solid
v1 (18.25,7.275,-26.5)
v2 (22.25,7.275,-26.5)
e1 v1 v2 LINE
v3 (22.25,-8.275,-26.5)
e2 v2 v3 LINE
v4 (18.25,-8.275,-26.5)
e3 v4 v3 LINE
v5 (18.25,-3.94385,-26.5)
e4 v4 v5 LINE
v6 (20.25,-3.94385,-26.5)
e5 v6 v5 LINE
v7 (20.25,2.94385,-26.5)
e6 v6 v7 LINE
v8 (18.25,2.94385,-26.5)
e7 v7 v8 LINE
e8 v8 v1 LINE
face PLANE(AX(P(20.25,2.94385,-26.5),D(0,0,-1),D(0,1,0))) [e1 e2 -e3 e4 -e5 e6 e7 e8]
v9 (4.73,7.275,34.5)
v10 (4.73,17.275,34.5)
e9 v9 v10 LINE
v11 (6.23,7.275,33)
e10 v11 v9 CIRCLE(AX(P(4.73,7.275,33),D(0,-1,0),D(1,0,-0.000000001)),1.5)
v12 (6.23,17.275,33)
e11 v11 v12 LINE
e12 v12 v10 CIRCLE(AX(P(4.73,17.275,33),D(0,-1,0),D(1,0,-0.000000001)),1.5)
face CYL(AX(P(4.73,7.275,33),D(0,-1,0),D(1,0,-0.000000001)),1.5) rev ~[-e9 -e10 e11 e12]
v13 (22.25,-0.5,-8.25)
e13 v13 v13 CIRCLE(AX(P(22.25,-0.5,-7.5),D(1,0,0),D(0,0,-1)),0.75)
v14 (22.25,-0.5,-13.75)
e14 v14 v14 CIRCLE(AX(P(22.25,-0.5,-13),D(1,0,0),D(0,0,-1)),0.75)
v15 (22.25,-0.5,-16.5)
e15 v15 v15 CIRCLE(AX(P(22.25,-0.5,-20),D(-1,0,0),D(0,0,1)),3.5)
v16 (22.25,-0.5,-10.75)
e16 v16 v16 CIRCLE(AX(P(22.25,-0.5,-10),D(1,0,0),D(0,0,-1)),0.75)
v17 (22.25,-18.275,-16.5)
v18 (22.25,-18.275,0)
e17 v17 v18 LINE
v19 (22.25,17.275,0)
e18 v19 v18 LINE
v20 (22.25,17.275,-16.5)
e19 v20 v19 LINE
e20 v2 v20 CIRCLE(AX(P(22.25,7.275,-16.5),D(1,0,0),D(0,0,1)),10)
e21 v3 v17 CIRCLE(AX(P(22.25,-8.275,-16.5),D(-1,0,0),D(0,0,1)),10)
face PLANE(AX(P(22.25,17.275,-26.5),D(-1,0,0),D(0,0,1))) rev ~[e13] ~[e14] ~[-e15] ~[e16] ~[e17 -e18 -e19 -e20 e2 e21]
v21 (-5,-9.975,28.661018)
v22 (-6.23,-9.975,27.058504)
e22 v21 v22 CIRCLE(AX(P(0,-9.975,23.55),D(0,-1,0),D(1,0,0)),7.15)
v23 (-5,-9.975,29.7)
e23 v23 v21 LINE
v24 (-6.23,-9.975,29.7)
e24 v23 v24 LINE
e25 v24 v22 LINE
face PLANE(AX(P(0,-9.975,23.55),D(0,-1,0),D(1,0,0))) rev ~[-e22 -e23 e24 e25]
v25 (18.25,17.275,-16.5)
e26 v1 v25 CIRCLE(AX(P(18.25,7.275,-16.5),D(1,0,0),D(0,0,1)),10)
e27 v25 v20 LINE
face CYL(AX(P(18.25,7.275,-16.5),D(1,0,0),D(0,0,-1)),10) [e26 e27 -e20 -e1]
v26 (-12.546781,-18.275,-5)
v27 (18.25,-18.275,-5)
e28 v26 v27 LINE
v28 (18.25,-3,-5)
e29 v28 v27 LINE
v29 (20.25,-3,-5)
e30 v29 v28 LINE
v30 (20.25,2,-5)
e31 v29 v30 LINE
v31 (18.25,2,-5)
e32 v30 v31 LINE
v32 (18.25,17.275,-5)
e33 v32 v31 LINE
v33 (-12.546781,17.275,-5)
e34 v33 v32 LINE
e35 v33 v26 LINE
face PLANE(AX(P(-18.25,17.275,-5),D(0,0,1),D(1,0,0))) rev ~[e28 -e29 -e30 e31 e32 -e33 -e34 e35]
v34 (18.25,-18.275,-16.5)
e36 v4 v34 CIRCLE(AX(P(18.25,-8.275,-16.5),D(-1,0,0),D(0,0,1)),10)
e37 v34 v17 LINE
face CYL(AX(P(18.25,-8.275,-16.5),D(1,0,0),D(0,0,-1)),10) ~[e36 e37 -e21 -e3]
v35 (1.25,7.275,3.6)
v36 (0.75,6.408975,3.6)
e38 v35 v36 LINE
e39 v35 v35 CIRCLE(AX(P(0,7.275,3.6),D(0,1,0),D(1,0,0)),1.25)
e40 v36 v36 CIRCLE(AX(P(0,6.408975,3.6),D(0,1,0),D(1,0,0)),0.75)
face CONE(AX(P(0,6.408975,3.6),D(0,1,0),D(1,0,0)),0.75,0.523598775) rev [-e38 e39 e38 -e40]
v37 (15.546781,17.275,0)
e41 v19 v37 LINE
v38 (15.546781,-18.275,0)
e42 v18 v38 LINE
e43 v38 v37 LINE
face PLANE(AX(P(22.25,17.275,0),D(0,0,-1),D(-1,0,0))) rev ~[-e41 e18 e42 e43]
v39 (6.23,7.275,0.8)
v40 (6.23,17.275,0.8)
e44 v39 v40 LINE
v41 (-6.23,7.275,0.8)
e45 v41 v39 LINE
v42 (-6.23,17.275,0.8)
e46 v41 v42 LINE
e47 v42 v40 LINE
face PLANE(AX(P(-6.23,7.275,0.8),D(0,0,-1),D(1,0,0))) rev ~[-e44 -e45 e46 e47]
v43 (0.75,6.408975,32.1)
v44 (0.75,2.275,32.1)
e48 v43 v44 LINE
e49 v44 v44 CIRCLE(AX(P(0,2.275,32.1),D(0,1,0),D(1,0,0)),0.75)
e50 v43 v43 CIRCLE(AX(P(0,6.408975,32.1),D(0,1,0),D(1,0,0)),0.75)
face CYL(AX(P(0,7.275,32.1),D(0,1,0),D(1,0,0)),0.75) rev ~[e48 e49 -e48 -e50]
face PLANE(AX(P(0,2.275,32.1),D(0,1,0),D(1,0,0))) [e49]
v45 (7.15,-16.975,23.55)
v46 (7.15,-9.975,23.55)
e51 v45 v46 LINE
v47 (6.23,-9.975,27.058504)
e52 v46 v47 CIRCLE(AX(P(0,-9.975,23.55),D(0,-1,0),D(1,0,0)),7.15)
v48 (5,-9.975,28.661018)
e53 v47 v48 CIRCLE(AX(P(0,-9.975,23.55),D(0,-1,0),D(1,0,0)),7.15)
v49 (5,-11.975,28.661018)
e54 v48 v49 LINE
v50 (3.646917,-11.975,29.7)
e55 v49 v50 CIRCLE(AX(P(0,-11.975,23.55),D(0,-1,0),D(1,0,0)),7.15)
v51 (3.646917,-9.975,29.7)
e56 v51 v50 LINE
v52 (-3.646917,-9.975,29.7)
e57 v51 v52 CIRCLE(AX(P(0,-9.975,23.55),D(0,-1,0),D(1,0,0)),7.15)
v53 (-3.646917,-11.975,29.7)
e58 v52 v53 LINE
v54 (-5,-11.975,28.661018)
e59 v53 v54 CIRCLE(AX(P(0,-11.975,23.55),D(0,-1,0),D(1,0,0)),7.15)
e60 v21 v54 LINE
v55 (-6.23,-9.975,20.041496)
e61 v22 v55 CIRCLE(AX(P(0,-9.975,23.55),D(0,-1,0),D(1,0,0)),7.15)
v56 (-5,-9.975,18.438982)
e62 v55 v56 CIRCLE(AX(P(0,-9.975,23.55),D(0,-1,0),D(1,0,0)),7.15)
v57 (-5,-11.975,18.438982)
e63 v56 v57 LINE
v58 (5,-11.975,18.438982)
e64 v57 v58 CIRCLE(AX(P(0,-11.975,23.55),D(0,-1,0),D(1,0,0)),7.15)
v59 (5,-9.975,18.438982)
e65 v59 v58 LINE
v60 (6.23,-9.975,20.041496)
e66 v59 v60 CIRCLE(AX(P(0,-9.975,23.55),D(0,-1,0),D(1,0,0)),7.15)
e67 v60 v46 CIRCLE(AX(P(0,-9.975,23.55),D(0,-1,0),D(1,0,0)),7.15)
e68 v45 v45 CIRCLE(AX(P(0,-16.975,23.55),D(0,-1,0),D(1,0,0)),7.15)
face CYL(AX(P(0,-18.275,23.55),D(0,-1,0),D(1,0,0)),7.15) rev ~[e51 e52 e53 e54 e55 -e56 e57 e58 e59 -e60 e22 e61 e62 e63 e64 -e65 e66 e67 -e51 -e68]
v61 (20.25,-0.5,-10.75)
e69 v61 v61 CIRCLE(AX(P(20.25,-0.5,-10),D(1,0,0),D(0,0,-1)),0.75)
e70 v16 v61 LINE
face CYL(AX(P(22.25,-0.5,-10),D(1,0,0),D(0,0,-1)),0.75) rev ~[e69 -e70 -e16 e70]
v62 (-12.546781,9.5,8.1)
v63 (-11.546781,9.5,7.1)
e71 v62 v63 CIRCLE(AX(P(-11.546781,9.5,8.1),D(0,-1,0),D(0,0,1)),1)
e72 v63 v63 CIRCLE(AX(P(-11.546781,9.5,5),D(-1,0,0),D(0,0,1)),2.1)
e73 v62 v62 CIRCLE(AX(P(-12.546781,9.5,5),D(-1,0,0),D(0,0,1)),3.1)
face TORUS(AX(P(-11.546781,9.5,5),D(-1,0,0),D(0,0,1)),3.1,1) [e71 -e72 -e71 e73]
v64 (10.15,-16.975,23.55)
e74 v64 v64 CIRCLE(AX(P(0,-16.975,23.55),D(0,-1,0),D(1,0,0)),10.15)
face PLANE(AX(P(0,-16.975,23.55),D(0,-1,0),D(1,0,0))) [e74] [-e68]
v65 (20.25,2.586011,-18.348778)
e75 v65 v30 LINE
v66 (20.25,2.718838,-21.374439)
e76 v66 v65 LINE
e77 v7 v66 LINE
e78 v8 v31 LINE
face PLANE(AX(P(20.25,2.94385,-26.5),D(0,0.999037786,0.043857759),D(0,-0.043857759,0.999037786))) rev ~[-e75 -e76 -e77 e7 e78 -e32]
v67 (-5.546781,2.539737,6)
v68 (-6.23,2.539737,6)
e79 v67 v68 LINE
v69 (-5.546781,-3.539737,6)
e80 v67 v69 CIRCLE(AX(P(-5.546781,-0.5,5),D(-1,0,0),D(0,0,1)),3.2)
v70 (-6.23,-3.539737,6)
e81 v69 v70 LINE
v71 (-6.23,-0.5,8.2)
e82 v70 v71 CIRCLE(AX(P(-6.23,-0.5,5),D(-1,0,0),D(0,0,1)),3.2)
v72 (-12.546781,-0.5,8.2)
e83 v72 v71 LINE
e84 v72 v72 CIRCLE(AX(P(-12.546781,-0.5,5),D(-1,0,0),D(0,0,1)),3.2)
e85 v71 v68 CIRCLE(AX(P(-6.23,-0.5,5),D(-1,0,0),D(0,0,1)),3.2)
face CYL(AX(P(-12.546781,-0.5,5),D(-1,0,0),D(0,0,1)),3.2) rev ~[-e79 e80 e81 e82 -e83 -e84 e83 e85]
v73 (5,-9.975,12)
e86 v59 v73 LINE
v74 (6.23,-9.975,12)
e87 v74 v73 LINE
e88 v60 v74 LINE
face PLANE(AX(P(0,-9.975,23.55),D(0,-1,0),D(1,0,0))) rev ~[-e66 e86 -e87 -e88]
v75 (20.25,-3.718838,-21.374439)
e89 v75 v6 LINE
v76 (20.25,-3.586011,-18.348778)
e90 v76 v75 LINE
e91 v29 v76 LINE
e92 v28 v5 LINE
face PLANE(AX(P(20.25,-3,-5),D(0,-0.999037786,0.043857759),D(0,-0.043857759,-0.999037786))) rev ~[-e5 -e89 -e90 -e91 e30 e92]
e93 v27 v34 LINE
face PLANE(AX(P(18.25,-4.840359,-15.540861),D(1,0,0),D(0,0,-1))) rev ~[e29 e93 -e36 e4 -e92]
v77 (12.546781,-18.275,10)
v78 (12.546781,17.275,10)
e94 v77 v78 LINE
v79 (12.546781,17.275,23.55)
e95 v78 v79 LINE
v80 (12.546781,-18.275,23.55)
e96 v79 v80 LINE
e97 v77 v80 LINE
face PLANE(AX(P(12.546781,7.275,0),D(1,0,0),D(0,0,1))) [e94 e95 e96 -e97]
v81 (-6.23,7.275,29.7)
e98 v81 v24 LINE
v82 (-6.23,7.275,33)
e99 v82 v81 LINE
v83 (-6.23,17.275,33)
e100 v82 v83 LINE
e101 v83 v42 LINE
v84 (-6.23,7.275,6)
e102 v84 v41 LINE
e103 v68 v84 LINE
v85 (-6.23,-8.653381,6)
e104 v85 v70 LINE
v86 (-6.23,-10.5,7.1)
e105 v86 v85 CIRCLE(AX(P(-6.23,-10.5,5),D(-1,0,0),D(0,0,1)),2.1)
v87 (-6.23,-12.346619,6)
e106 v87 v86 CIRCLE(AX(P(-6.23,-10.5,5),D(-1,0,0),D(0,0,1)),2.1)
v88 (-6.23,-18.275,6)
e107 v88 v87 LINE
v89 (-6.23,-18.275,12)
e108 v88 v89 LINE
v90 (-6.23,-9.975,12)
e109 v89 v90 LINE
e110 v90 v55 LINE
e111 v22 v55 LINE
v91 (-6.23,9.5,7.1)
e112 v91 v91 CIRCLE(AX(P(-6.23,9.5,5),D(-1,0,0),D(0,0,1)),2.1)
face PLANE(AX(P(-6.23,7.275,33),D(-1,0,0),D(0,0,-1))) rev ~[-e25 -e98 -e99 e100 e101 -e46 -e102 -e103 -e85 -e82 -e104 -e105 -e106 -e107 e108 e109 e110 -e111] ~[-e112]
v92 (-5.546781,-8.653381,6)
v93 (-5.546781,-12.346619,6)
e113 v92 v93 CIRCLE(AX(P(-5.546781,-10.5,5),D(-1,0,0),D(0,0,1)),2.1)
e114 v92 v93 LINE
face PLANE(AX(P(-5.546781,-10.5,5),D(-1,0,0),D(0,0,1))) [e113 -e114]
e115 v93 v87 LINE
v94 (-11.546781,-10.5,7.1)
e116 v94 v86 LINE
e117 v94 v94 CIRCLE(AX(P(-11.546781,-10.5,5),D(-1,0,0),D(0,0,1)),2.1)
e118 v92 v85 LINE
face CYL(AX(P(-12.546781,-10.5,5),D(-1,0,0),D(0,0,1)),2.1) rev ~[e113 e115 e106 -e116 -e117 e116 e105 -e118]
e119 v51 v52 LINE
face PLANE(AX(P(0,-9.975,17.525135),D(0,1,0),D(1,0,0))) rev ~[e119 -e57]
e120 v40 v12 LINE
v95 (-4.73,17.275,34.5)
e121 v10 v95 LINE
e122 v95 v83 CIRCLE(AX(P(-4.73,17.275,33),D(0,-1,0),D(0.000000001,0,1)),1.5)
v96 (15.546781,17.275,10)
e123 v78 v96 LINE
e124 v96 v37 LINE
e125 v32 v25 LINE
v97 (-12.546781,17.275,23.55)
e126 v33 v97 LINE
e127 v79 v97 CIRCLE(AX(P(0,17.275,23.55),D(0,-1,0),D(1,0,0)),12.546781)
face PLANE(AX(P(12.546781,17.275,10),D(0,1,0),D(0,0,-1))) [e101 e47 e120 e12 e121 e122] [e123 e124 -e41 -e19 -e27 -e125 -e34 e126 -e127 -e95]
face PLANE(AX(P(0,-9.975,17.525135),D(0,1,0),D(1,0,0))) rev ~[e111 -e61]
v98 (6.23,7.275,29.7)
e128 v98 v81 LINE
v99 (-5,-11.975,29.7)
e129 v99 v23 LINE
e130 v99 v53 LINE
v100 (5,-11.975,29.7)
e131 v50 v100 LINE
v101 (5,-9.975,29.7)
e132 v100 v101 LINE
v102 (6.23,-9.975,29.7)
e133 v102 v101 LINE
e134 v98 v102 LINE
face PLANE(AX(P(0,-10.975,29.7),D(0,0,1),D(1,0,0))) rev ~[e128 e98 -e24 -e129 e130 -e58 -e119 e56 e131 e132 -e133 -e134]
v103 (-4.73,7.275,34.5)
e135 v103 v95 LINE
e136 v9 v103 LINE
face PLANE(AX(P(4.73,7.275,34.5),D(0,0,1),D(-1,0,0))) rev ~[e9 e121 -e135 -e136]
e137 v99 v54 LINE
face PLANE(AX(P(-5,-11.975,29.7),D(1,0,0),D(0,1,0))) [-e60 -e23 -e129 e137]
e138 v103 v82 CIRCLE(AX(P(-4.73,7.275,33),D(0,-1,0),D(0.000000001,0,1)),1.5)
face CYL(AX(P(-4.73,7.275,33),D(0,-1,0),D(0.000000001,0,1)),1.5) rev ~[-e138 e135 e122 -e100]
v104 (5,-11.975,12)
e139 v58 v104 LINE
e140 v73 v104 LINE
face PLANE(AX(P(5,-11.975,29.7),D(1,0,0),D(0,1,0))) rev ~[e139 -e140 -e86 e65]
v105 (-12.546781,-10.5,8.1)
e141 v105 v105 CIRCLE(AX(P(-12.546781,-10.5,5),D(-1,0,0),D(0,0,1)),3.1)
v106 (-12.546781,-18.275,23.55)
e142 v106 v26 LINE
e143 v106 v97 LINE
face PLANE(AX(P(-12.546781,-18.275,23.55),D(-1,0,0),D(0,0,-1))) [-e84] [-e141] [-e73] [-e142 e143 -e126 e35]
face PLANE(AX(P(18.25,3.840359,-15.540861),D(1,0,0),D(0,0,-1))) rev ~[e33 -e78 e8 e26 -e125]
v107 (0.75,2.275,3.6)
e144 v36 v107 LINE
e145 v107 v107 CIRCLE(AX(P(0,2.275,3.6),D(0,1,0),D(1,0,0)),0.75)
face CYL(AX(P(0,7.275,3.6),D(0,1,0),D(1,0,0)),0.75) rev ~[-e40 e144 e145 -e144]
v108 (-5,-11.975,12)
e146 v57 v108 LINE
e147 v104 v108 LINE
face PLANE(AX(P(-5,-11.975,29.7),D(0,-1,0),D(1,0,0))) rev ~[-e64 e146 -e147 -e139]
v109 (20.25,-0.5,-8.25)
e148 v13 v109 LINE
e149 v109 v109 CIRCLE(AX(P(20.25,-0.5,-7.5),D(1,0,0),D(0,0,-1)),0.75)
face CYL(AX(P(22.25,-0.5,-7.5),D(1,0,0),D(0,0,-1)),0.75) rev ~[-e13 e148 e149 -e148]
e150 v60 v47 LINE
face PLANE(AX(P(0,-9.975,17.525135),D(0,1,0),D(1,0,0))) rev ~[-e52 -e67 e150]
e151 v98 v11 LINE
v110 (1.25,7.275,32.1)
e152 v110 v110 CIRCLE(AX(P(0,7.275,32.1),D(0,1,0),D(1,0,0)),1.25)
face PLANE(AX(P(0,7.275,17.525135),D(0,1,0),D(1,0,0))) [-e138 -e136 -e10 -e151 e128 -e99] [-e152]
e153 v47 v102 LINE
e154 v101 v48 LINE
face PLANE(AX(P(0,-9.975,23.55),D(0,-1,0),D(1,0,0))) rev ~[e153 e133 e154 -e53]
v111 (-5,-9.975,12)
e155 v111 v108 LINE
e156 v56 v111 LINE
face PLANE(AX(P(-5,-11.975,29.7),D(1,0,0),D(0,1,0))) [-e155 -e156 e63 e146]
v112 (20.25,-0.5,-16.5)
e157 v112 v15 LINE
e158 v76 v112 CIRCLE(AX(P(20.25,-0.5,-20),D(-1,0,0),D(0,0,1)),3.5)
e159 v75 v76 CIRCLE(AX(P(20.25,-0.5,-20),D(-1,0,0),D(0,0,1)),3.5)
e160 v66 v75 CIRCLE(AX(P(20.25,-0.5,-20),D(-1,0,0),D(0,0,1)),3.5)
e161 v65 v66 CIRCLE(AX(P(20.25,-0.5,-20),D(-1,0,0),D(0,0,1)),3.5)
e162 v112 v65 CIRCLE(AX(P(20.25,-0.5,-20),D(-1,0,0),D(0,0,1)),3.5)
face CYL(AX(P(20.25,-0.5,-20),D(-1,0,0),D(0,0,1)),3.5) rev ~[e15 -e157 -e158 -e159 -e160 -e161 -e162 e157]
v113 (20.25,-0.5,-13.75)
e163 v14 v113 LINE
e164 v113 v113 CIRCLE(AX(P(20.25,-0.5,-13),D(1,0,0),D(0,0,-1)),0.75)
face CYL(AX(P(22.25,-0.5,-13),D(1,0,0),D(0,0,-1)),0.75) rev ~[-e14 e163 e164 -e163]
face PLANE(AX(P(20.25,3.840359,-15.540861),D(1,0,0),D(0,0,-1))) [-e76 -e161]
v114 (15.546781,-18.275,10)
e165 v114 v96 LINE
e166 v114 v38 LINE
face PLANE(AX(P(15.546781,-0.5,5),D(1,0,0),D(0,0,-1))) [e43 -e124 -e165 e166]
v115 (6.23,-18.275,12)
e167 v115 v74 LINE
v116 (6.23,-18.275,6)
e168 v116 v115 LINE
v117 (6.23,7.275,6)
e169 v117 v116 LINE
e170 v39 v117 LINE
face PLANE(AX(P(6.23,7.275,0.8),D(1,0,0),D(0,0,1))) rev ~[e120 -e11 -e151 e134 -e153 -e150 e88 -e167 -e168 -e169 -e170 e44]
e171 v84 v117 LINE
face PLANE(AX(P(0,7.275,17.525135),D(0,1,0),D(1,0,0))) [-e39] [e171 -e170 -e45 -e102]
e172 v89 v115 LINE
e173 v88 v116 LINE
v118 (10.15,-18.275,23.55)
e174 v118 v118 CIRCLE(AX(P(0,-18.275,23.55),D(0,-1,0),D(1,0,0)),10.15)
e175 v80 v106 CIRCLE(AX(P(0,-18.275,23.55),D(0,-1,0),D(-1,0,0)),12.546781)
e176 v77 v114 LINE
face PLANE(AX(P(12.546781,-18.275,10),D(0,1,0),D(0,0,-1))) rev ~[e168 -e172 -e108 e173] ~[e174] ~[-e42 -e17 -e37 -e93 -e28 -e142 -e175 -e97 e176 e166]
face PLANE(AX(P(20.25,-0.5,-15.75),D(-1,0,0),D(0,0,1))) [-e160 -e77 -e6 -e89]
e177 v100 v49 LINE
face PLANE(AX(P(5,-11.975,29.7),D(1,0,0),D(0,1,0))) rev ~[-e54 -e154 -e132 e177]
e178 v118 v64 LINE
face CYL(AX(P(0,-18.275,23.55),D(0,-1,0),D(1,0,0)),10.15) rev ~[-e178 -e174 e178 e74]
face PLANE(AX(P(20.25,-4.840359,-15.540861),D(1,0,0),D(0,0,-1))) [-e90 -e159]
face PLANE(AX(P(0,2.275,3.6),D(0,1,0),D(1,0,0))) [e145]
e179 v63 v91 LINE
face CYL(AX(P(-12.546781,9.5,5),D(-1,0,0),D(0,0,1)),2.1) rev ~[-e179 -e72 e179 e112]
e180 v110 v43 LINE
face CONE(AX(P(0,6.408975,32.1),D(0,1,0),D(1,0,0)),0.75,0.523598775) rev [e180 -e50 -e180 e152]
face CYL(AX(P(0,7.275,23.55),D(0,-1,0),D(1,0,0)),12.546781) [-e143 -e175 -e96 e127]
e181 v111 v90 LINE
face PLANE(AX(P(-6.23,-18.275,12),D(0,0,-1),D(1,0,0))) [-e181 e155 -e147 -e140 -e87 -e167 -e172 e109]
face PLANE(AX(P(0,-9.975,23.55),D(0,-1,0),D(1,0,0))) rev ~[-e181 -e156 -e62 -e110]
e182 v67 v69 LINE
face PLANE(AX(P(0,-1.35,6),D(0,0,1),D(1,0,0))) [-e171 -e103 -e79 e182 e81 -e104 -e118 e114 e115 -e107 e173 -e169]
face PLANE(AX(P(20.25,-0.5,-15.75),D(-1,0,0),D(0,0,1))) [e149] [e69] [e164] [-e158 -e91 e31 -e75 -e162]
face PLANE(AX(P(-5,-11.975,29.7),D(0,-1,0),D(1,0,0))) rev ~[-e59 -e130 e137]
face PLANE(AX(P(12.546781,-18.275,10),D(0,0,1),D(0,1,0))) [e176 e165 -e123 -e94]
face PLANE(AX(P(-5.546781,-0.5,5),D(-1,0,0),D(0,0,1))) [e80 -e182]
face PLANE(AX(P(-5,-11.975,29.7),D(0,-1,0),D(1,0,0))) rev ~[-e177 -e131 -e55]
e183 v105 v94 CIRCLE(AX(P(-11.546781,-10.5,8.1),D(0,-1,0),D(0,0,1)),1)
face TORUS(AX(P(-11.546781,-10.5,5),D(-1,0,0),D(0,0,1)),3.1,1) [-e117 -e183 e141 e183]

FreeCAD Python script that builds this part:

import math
import FreeCAD as App
import Part
import Sketcher
from FreeCAD import Vector
Q = App.Units.Quantity


def edges_at(feature, points):
    """Names of the edges that pass closest to the given points."""
    edges = feature.Shape.Edges
    near = lambda p: min(range(len(edges)), key=lambda i: edges[i].distToShape(Part.Vertex(*p))[0])
    return sorted({f"Edge{near(p) + 1}" for p in points})

doc = App.newDocument("Part")
params = doc.addObject("Spreadsheet::Sheet", "Params")
for row, (alias, value) in enumerate([
    ("sketch1_width", "12.46 mm"),
    ("sketch1_height", "17.25 mm"),
    ("pad1_length", "6 mm"),
    ("sketch2_diameter", "22.3 mm"),
    ("pad2_length", "8.3 mm"),
    ("pad2_length2", "17.25 mm"),
    ("sketch3_height", "29.7 mm"),
    ("sketch3_width", "12.46 mm"),
    ("sketch3_height2", "23.55 mm"),
    ("pad3_length", "17.25 mm"),
    ("sketch4_diameter", "1.5 mm"),
    ("pocket1_length", "5 mm"),
    ("chamfer_size", "0.5 mm"),
    ("chamfer_size2", "0.866025 mm"),
    ("sketch5_height", "23.7 mm"),
    ("sketch5_width", "12.46 mm"),
    ("pocket2_length", "17.25 mm"),
    ("sketch6_height", "23.55 mm"),
    ("pad4_length", "8.3 mm"),
    ("sketch7_radius", "1.5 mm"),
    ("sketch7_height", "32.2 mm"),
    ("sketch7_width", "12.46 mm"),
    ("sketch7_height2", "23.55 mm"),
    ("pad5_length", "10 mm"),
    ("sketch8_diameter", "22.3 mm"),
    ("sketch8_diameter2", "14.3 mm"),
    ("pad6_length", "8.3 mm"),
    ("sketch9_diameter", "20.3 mm"),
    ("sketch9_diameter2", "14.3 mm"),
    ("pocket3_length", "1.3 mm"),
    ("sketch10_width", "10 mm"),
    ("sketch10_height", "2 mm"),
    ("pocket4_length", "23.7 mm"),
    ("sketch11_height", "6 mm"),
    ("sketch11_width", "12.46 mm"),
    ("pocket5_length", "8.3 mm"),
    ("sketch12_width", "4 mm"),
    ("sketch12_width2", "36.5 mm"),
    ("sketch12_height", "26.5 mm"),
    ("sketch12_height2", "21.5 mm"),
    ("pad7_length", "35.55 mm"),
    ("sketch13_height", "21.5 mm"),
    ("pocket6_length", "2 mm"),
    ("sketch14_diameter", "7 mm"),
    ("fillet_radius", "10 mm"),
    ("sketch15_diameter", "13 mm"),
    ("pad8_length", "5 mm"),
    ("sketch16_diameter", "11.7 mm"),
    ("pad9_length", "5 mm"),
    ("fillet2_radius", "1 mm"),
    ("sketch17_height", "21.5 mm"),
    ("pad10_length", "2 mm"),
    ("sketch18_diameter", "1.5 mm"),
    ("sketch19_diameter", "1.5 mm"),
    ("sketch20_diameter", "1.5 mm"),
    ("sketch22_diameter", "4.2 mm"),
    ("sketch22_diameter2", "6.4 mm"),
    ("pocket12_length", "7 mm"),
    ("fillet3_radius", "1 mm"),
    ("sketch23_height", "10 mm"),
    ("sketch23_width", "35.55 mm"),
    ("pad11_length", "3 mm"),
], start=1):
    params.set(f"A{row}", alias)
    params.set(f"B{row}", "=" + value)
    params.setAlias(f"B{row}", alias)

body = doc.addObject("PartDesign::Body", "Body")

# Sketch on XY plane
sketch1 = body.newObject("Sketcher::SketchObject", "Sketch")
sketch1.AttachmentSupport = (doc.getObject("XY_Plane"), [""])
sketch1.MapMode = "FlatFace"
sketch1.addGeometry([
    Part.LineSegment(Vector(-6, 7, 0), Vector(-6, -10, 0)),
    Part.LineSegment(Vector(-6, -10, 0), Vector(6, -10, 0)),
    Part.LineSegment(Vector(6, -10, 0), Vector(6, 7, 0)),
    Part.LineSegment(Vector(6, 7, 0), Vector(-6, 7, 0)),
], False)
sketch1.addConstraint([
    Sketcher.Constraint("Coincident", 0, 2, 1, 1),
    Sketcher.Constraint("Coincident", 1, 2, 2, 1),
    Sketcher.Constraint("Coincident", 2, 2, 3, 1),
    Sketcher.Constraint("Coincident", 3, 2, 0, 1),
    Sketcher.Constraint("Vertical", 0),
    Sketcher.Constraint("Horizontal", 1),
    Sketcher.Constraint("Vertical", 2),
    Sketcher.Constraint("Horizontal", 3),
    Sketcher.Constraint("DistanceX", 1, 1, 1, 2, Q("12.46 mm")),
    Sketcher.Constraint("DistanceY", 0, 2, 0, 1, Q("17.25 mm")),
    Sketcher.Constraint("DistanceX", 0, 2, -1, 1, Q("6.23 mm")),
    Sketcher.Constraint("DistanceY", 0, 2, -1, 1, Q("9.975 mm")),
])
sketch1.setExpression("Constraints[8]", "Params.sketch1_width")
sketch1.setExpression("Constraints[9]", "Params.sketch1_height")
pad1 = body.newObject("PartDesign::Pad", "Pad")
pad1.Profile = sketch1
pad1.setExpression("Length", "Params.pad1_length")
body2 = doc.addObject("PartDesign::Body", "Body001")

# Sketch on XZ plane
sketch2 = body2.newObject("Sketcher::SketchObject", "Sketch001")
sketch2.AttachmentSupport = (doc.getObject("XZ_Plane001"), [""])
sketch2.MapMode = "FlatFace"
sketch2.AttachmentOffset = App.Placement(Vector(0, 0, 9.975), App.Rotation())
sketch2.addGeometry([
    Part.Circle(Vector(0, 24, 0), Vector(0, 0, 1), 13),
    Part.Circle(Vector(0, 24, 0), Vector(0, 0, 1), 11),
], False)
sketch2.addConstraint([
    Sketcher.Constraint("Coincident", 1, 3, 0, 3),
    Sketcher.Constraint("PointOnObject", 0, 3, -2),
    Sketcher.Constraint("Diameter", 1, Q("22.3 mm")),
    Sketcher.Constraint("DistanceY", -1, 1, 0, 3, Q("23.55 mm")),
    Sketcher.Constraint("Diameter", 0, Q("25.093562 mm")),
])
sketch2.setExpression("Constraints[2]", "Params.sketch2_diameter")
pad2 = body2.newObject("PartDesign::Pad", "Pad001")
pad2.Profile = sketch2
pad2.Type = "TwoLengths"
pad2.setExpression("Length", "Params.pad2_length")
pad2.setExpression("Length2", "Params.pad2_length2")
body.AllowCompound = True
doc.recompute()

boolean = body.newObject("PartDesign::Boolean", "Boolean")
boolean.Type = "Fuse"
boolean.addObjects([body2])

# Sketch on XZ plane
sketch3 = body.newObject("Sketcher::SketchObject", "Sketch002")
sketch3.AttachmentSupport = (doc.getObject("XZ_Plane"), [""])
sketch3.MapMode = "FlatFace"
sketch3.AttachmentOffset = App.Placement(Vector(0, 0, -7.275), App.Rotation())
sketch3.addGeometry([
    Part.LineSegment(Vector(13, 24, 0), Vector(13, 0, 0)),  # 0
    Part.LineSegment(Vector(13, 0, 0), Vector(6, 0, 0)),  # 1
    Part.LineSegment(Vector(6, 0, 0), Vector(6, 30, 0)),  # 2
    Part.LineSegment(Vector(6, 30, 0), Vector(-6, 30, 0)),  # 3
    Part.LineSegment(Vector(-6, 30, 0), Vector(-6, 0, 0)),  # 4
    Part.LineSegment(Vector(-6, 0, 0), Vector(-13, 0, 0)),  # 5
    Part.LineSegment(Vector(-13, 0, 0), Vector(-13, 24, 0)),  # 6
    Part.ArcOfCircle(Part.Circle(Vector(0, 24, 0), Vector(0, 0, 1), 13), math.radians(0), math.radians(180)),  # 7
], False)
sketch3.addConstraint([
    Sketcher.Constraint("Coincident", 0, 2, 1, 1),
    Sketcher.Constraint("Coincident", 1, 2, 2, 1),
    Sketcher.Constraint("Coincident", 2, 2, 3, 1),
    Sketcher.Constraint("Coincident", 3, 2, 4, 1),
    Sketcher.Constraint("Coincident", 4, 2, 5, 1),
    Sketcher.Constraint("Coincident", 5, 2, 6, 1),
    Sketcher.Constraint("Tangent", 6, 2, 7, 2),
    Sketcher.Constraint("Tangent", 7, 1, 0, 1),
    Sketcher.Constraint("Vertical", 0),
    Sketcher.Constraint("Horizontal", 1),
    Sketcher.Constraint("Vertical", 2),
    Sketcher.Constraint("Horizontal", 3),
    Sketcher.Constraint("Vertical", 4),
    Sketcher.Constraint("Horizontal", 5),
    Sketcher.Constraint("Vertical", 6),
    Sketcher.Constraint("Symmetric", 1, 2, 4, 2, -1, 1),
    Sketcher.Constraint("Symmetric", 0, 2, 5, 2, -2),
    Sketcher.Constraint("DistanceY", 2, 1, 2, 2, Q("29.7 mm")),
    Sketcher.Constraint("DistanceX", 3, 2, 3, 1, Q("12.46 mm")),
    Sketcher.Constraint("DistanceY", 0, 2, 0, 1, Q("23.55 mm")),
    Sketcher.Constraint("Radius", 7, Q("12.546781 mm")),
])
sketch3.setExpression("Constraints[17]", "Params.sketch3_height")
sketch3.setExpression("Constraints[18]", "Params.sketch3_width")
sketch3.setExpression("Constraints[19]", "Params.sketch3_height2")
pad3 = body.newObject("PartDesign::Pad", "Pad002")
pad3.Profile = sketch3
pad3.setExpression("Length", "Params.pad3_length")

# Sketch on XZ plane
sketch4 = body.newObject("Sketcher::SketchObject", "Sketch003")
sketch4.AttachmentSupport = (doc.getObject("XZ_Plane"), [""])
sketch4.MapMode = "FlatFace"
sketch4.AttachmentOffset = App.Placement(Vector(0, 0, -7.275), App.Rotation())
sketch4.addGeometry([
    Part.Circle(Vector(0, 3.6, 0), Vector(0, 0, 1), 0.8),
    Part.Circle(Vector(0, 32.1, 0), Vector(0, 0, 1), 0.8),
], False)
sketch4.addConstraint([
    Sketcher.Constraint("Equal", 0, 1),
    Sketcher.Constraint("PointOnObject", 0, 3, -2),
    Sketcher.Constraint("PointOnObject", 1, 3, -2),
    Sketcher.Constraint("Diameter", 0, Q("1.5 mm")),
    Sketcher.Constraint("DistanceY", -1, 1, 0, 3, Q("3.6 mm")),
    Sketcher.Constraint("DistanceY", -1, 1, 1, 3, Q("32.1 mm")),
])
sketch4.setExpression("Constraints[3]", "Params.sketch4_diameter")
pocket1 = body.newObject("PartDesign::Pocket", "Pocket")
pocket1.Profile = sketch4
pocket1.setExpression("Length", "Params.pocket1_length")
pocket1.Reversed = True
doc.recompute()

chamfer = body.newObject("PartDesign::Chamfer", "Chamfer")
chamfer.Base = (pocket1, edges_at(pocket1, [(-0.75, 7.275, 3.6), (-0.75, 7.275, 32.1)]))
chamfer.ChamferType = "Two distances"
chamfer.setExpression("Size", "Params.chamfer_size")
chamfer.setExpression("Size2", "Params.chamfer_size2")

# Sketch on XZ plane
sketch5 = body.newObject("Sketcher::SketchObject", "Sketch004")
sketch5.AttachmentSupport = (doc.getObject("XZ_Plane"), [""])
sketch5.MapMode = "FlatFace"
sketch5.AttachmentOffset = App.Placement(Vector(0, 0, -7.275), App.Rotation())
sketch5.addGeometry([
    Part.LineSegment(Vector(-6, 6, 0), Vector(-6, 30, 0)),
    Part.LineSegment(Vector(-6, 30, 0), Vector(6, 30, 0)),
    Part.LineSegment(Vector(6, 30, 0), Vector(6, 6, 0)),
    Part.LineSegment(Vector(6, 6, 0), Vector(-6, 6, 0)),
], False)
sketch5.addConstraint([
    Sketcher.Constraint("Coincident", 0, 2, 1, 1),
    Sketcher.Constraint("Coincident", 1, 2, 2, 1),
    Sketcher.Constraint("Coincident", 2, 2, 3, 1),
    Sketcher.Constraint("Coincident", 3, 2, 0, 1),
    Sketcher.Constraint("Vertical", 0),
    Sketcher.Constraint("Horizontal", 1),
    Sketcher.Constraint("Vertical", 2),
    Sketcher.Constraint("Horizontal", 3),
    Sketcher.Constraint("DistanceY", 0, 1, 0, 2, Q("23.7 mm")),
    Sketcher.Constraint("DistanceY", -1, 1, 2, 2, Q("6 mm")),
    Sketcher.Constraint("DistanceX", 1, 1, 1, 2, Q("12.46 mm")),
    Sketcher.Constraint("DistanceX", 0, 2, -1, 1, Q("6.23 mm")),
])
sketch5.setExpression("Constraints[8]", "Params.sketch5_height")
sketch5.setExpression("Constraints[10]", "Params.sketch5_width")
pocket2 = body.newObject("PartDesign::Pocket", "Pocket001")
pocket2.Profile = sketch5
pocket2.setExpression("Length", "Params.pocket2_length")
pocket2.Reversed = True

# Sketch on XZ plane
sketch6 = body.newObject("Sketcher::SketchObject", "Sketch005")
sketch6.AttachmentSupport = (doc.getObject("XZ_Plane"), [""])
sketch6.MapMode = "FlatFace"
sketch6.AttachmentOffset = App.Placement(Vector(0, 0, 18.275), App.Rotation())
sketch6.addGeometry([
    Part.LineSegment(Vector(-13, 24, 0), Vector(-13, 0, 0)),
    Part.LineSegment(Vector(-13, 0, 0), Vector(13, 0, 0)),
    Part.LineSegment(Vector(13, 0, 0), Vector(13, 24, 0)),
    Part.ArcOfCircle(Part.Circle(Vector(0, 24, 0), Vector(0, 0, 1), 13), math.radians(180), math.radians(360)),
], False)
sketch6.addConstraint([
    Sketcher.Constraint("Coincident", 0, 2, 1, 1),
    Sketcher.Constraint("Coincident", 1, 2, 2, 1),
    Sketcher.Constraint("Tangent", 2, 2, 3, 2),
    Sketcher.Constraint("Tangent", 3, 1, 0, 1),
    Sketcher.Constraint("Vertical", 0),
    Sketcher.Constraint("Horizontal", 1),
    Sketcher.Constraint("Vertical", 2),
    Sketcher.Constraint("Symmetric", 0, 2, 1, 2, -1, 1),
    Sketcher.Constraint("DistanceY", 0, 2, 0, 1, Q("23.55 mm")),
    Sketcher.Constraint("Radius", 3, Q("12.546781 mm")),
])
sketch6.setExpression("Constraints[8]", "Params.sketch6_height")
pad4 = body.newObject("PartDesign::Pad", "Pad003")
pad4.Profile = sketch6
pad4.setExpression("Length", "Params.pad4_length")
pad4.Reversed = True

# Sketch on XZ plane
sketch7 = body.newObject("Sketcher::SketchObject", "Sketch006")
sketch7.AttachmentSupport = (doc.getObject("XZ_Plane"), [""])
sketch7.MapMode = "FlatFace"
sketch7.AttachmentOffset = App.Placement(Vector(0, 0, -7.275), App.Rotation())
sketch7.addGeometry([
    Part.LineSegment(Vector(12.5, 0, 0), Vector(-12.5, 0, 0)),  # 0
    Part.LineSegment(Vector(-12.5, 0, 0), Vector(-12.5, 23.6, 0)),  # 1
    Part.ArcOfCircle(Part.Circle(Vector(0, 23.6, 0), Vector(0, 0, 1), 12.5), math.radians(0), math.radians(180)),  # 2
    Part.LineSegment(Vector(12.5, 23.6, 0), Vector(12.5, 0, 0)),  # 3
    Part.LineSegment(Vector(-6.2, 0.8, 0), Vector(6.2, 0.8, 0)),  # 4
    Part.LineSegment(Vector(6.2, 0.8, 0), Vector(6.2, 33, 0)),  # 5
    Part.ArcOfCircle(Part.Circle(Vector(4.7, 33, 0), Vector(0, 0, 1), 1.5), math.radians(0), math.radians(90)),  # 6
    Part.LineSegment(Vector(4.7, 34.5, 0), Vector(-4.7, 34.5, 0)),  # 7
    Part.ArcOfCircle(Part.Circle(Vector(-4.7, 33, 0), Vector(0, 0, 1), 1.5), math.radians(90), math.radians(180)),  # 8
    Part.LineSegment(Vector(-6.2, 33, 0), Vector(-6.2, 0.8, 0)),  # 9
], False)
sketch7.addConstraint([
    Sketcher.Constraint("Coincident", 0, 2, 1, 1),
    Sketcher.Constraint("Tangent", 1, 2, 2, 2),
    Sketcher.Constraint("Tangent", 2, 1, 3, 1),
    Sketcher.Constraint("Coincident", 3, 2, 0, 1),
    Sketcher.Constraint("Coincident", 4, 2, 5, 1),
    Sketcher.Constraint("Tangent", 5, 2, 6, 1),
    Sketcher.Constraint("Tangent", 6, 2, 7, 1),
    Sketcher.Constraint("Tangent", 7, 2, 8, 1),
    Sketcher.Constraint("Tangent", 8, 2, 9, 1),
    Sketcher.Constraint("Coincident", 9, 2, 4, 1),
    Sketcher.Constraint("Horizontal", 0),
    Sketcher.Constraint("Vertical", 1),
    Sketcher.Constraint("Vertical", 3),
    Sketcher.Constraint("Horizontal", 4),
    Sketcher.Constraint("Vertical", 5),
    Sketcher.Constraint("Horizontal", 7),
    Sketcher.Constraint("Vertical", 9),
    Sketcher.Constraint("Equal", 6, 8),
    Sketcher.Constraint("Symmetric", 0, 2, 3, 2, -1, 1),
    Sketcher.Constraint("Radius", 6, Q("1.5 mm")),
    Sketcher.Constraint("DistanceY", 5, 1, 5, 2, Q("32.2 mm")),
    Sketcher.Constraint("DistanceY", -1, 1, 6, 3, Q("33 mm")),
    Sketcher.Constraint("DistanceX", 4, 1, 4, 2, Q("12.46 mm")),
    Sketcher.Constraint("DistanceY", 1, 1, 1, 2, Q("23.55 mm")),
    Sketcher.Constraint("DistanceX", -1, 1, 6, 3, Q("4.73 mm")),
    Sketcher.Constraint("Radius", 2, Q("12.546781 mm")),
])
sketch7.setExpression("Constraints[19]", "Params.sketch7_radius")
sketch7.setExpression("Constraints[20]", "Params.sketch7_height")
sketch7.setExpression("Constraints[22]", "Params.sketch7_width")
sketch7.setExpression("Constraints[23]", "Params.sketch7_height2")
pad5 = body.newObject("PartDesign::Pad", "Pad004")
pad5.Profile = sketch7
pad5.setExpression("Length", "Params.pad5_length")
pad5.Reversed = True

# Sketch on XZ plane
sketch8 = body.newObject("Sketcher::SketchObject", "Sketch007")
sketch8.AttachmentSupport = (doc.getObject("XZ_Plane"), [""])
sketch8.MapMode = "FlatFace"
sketch8.AttachmentOffset = App.Placement(Vector(0, 0, 18.275), App.Rotation())
sketch8.addGeometry([
    Part.Circle(Vector(0, 24, 0), Vector(0, 0, 1), 11),
    Part.Circle(Vector(0, 24, 0), Vector(0, 0, 1), 7),
], False)
sketch8.addConstraint([
    Sketcher.Constraint("Coincident", 1, 3, 0, 3),
    Sketcher.Constraint("PointOnObject", 0, 3, -2),
    Sketcher.Constraint("Diameter", 0, Q("22.3 mm")),
    Sketcher.Constraint("Diameter", 1, Q("14.3 mm")),
    Sketcher.Constraint("DistanceY", -1, 1, 0, 3, Q("23.55 mm")),
])
sketch8.setExpression("Constraints[2]", "Params.sketch8_diameter")
sketch8.setExpression("Constraints[3]", "Params.sketch8_diameter2")
pad6 = body.newObject("PartDesign::Pad", "Pad005")
pad6.Profile = sketch8
pad6.setExpression("Length", "Params.pad6_length")
pad6.Reversed = True

# Sketch on XZ plane
sketch9 = body.newObject("Sketcher::SketchObject", "Sketch008")
sketch9.AttachmentSupport = (doc.getObject("XZ_Plane"), [""])
sketch9.MapMode = "FlatFace"
sketch9.AttachmentOffset = App.Placement(Vector(0, 0, 18.275), App.Rotation())
sketch9.addGeometry([
    Part.Circle(Vector(0, 24, 0), Vector(0, 0, 1), 10),
    Part.Circle(Vector(0, 24, 0), Vector(0, 0, 1), 7),
], False)
sketch9.addConstraint([
    Sketcher.Constraint("Coincident", 1, 3, 0, 3),
    Sketcher.Constraint("PointOnObject", 0, 3, -2),
    Sketcher.Constraint("Diameter", 0, Q("20.3 mm")),
    Sketcher.Constraint("Diameter", 1, Q("14.3 mm")),
    Sketcher.Constraint("DistanceY", -1, 1, 0, 3, Q("23.55 mm")),
])
sketch9.setExpression("Constraints[2]", "Params.sketch9_diameter")
sketch9.setExpression("Constraints[3]", "Params.sketch9_diameter2")
pocket3 = body.newObject("PartDesign::Pocket", "Pocket002")
pocket3.Profile = sketch9
pocket3.setExpression("Length", "Params.pocket3_length")

# Sketch on XY plane
sketch10 = body.newObject("Sketcher::SketchObject", "Sketch009")
sketch10.AttachmentSupport = (doc.getObject("XY_Plane"), [""])
sketch10.MapMode = "FlatFace"
sketch10.AttachmentOffset = App.Placement(Vector(0, 0, 29.7), App.Rotation())
sketch10.addGeometry([
    Part.LineSegment(Vector(-5, -10, 0), Vector(-5, -12, 0)),
    Part.LineSegment(Vector(-5, -12, 0), Vector(5, -12, 0)),
    Part.LineSegment(Vector(5, -12, 0), Vector(5, -10, 0)),
    Part.LineSegment(Vector(5, -10, 0), Vector(-5, -10, 0)),
], False)
sketch10.addConstraint([
    Sketcher.Constraint("Coincident", 0, 2, 1, 1),
    Sketcher.Constraint("Coincident", 1, 2, 2, 1),
    Sketcher.Constraint("Coincident", 2, 2, 3, 1),
    Sketcher.Constraint("Coincident", 3, 2, 0, 1),
    Sketcher.Constraint("Vertical", 0),
    Sketcher.Constraint("Horizontal", 1),
    Sketcher.Constraint("Vertical", 2),
    Sketcher.Constraint("Horizontal", 3),
    Sketcher.Constraint("DistanceX", 1, 1, 1, 2, Q("10 mm")),
    Sketcher.Constraint("DistanceY", 0, 2, 0, 1, Q("2 mm")),
    Sketcher.Constraint("DistanceX", 0, 2, -1, 1, Q("5 mm")),
    Sketcher.Constraint("DistanceY", 0, 2, -1, 1, Q("11.975 mm")),
])
sketch10.setExpression("Constraints[8]", "Params.sketch10_width")
sketch10.setExpression("Constraints[9]", "Params.sketch10_height")
pocket4 = body.newObject("PartDesign::Pocket", "Pocket003")
pocket4.Profile = sketch10
pocket4.setExpression("Length", "Params.pocket4_length")

# Sketch on XZ plane
sketch11 = body.newObject("Sketcher::SketchObject", "Sketch010")
sketch11.AttachmentSupport = (doc.getObject("XZ_Plane"), [""])
sketch11.MapMode = "FlatFace"
sketch11.AttachmentOffset = App.Placement(Vector(0, 0, 18.275), App.Rotation())
sketch11.addGeometry([
    Part.LineSegment(Vector(-6, 12, 0), Vector(-6, 6, 0)),
    Part.LineSegment(Vector(-6, 6, 0), Vector(6, 6, 0)),
    Part.LineSegment(Vector(6, 6, 0), Vector(6, 12, 0)),
    Part.LineSegment(Vector(6, 12, 0), Vector(-6, 12, 0)),
], False)
sketch11.addConstraint([
    Sketcher.Constraint("Coincident", 0, 2, 1, 1),
    Sketcher.Constraint("Coincident", 1, 2, 2, 1),
    Sketcher.Constraint("Coincident", 2, 2, 3, 1),
    Sketcher.Constraint("Coincident", 3, 2, 0, 1),
    Sketcher.Constraint("Vertical", 0),
    Sketcher.Constraint("Horizontal", 1),
    Sketcher.Constraint("Vertical", 2),
    Sketcher.Constraint("Horizontal", 3),
    Sketcher.Constraint("DistanceY", 0, 2, 0, 1, Q("6 mm")),
    Sketcher.Constraint("DistanceY", -1, 1, 0, 2, Q("6 mm")),
    Sketcher.Constraint("DistanceX", 1, 1, 1, 2, Q("12.46 mm")),
    Sketcher.Constraint("DistanceX", 0, 2, -1, 1, Q("6.23 mm")),
])
sketch11.setExpression("Constraints[8]", "Params.sketch11_height")
sketch11.setExpression("Constraints[10]", "Params.sketch11_width")
pocket5 = body.newObject("PartDesign::Pocket", "Pocket004")
pocket5.Profile = sketch11
pocket5.setExpression("Length", "Params.pocket5_length")

# Sketch on XZ plane
sketch12 = body.newObject("Sketcher::SketchObject", "Sketch011")
sketch12.AttachmentSupport = (doc.getObject("XZ_Plane"), [""])
sketch12.MapMode = "FlatFace"
sketch12.AttachmentOffset = App.Placement(Vector(0, 0, -17.275), App.Rotation())
sketch12.addGeometry([
    Part.LineSegment(Vector(22.2, 0, 0), Vector(22.2, -26.5, 0)),  # 0
    Part.LineSegment(Vector(22.2, -26.5, 0), Vector(18.2, -26.5, 0)),  # 1
    Part.LineSegment(Vector(18.2, -26.5, 0), Vector(18.2, -5, 0)),  # 2
    Part.LineSegment(Vector(18.2, -5, 0), Vector(-18.2, -5, 0)),  # 3
    Part.LineSegment(Vector(-18.2, -5, 0), Vector(-18.2, -26.5, 0)),  # 4
    Part.LineSegment(Vector(-18.2, -26.5, 0), Vector(-22.2, -26.5, 0)),  # 5
    Part.LineSegment(Vector(-22.2, -26.5, 0), Vector(-22.2, 0, 0)),  # 6
    Part.LineSegment(Vector(-22.2, 0, 0), Vector(22.2, 0, 0)),  # 7
], False)
sketch12.addConstraint([
    Sketcher.Constraint("Coincident", 0, 2, 1, 1),
    Sketcher.Constraint("Coincident", 1, 2, 2, 1),
    Sketcher.Constraint("Coincident", 2, 2, 3, 1),
    Sketcher.Constraint("Coincident", 3, 2, 4, 1),
    Sketcher.Constraint("Coincident", 4, 2, 5, 1),
    Sketcher.Constraint("Coincident", 5, 2, 6, 1),
    Sketcher.Constraint("Coincident", 6, 2, 7, 1),
    Sketcher.Constraint("Coincident", 7, 2, 0, 1),
    Sketcher.Constraint("Vertical", 0),
    Sketcher.Constraint("Horizontal", 1),
    Sketcher.Constraint("Vertical", 2),
    Sketcher.Constraint("Horizontal", 3),
    Sketcher.Constraint("Vertical", 4),
    Sketcher.Constraint("Horizontal", 5),
    Sketcher.Constraint("Vertical", 6),
    Sketcher.Constraint("Horizontal", 7),
    Sketcher.Constraint("Symmetric", 6, 2, 7, 2, -1, 1),
    Sketcher.Constraint("Symmetric", 1, 2, 4, 2, -2),
    Sketcher.Constraint("DistanceX", 1, 2, 1, 1, Q("4 mm")),
    Sketcher.Constraint("DistanceX", 3, 2, 3, 1, Q("36.5 mm")),
    Sketcher.Constraint("DistanceY", 0, 2, 0, 1, Q("26.5 mm")),
    Sketcher.Constraint("DistanceY", 2, 1, 2, 2, Q("21.5 mm")),
])
sketch12.setExpression("Constraints[18]", "Params.sketch12_width")
sketch12.setExpression("Constraints[19]", "Params.sketch12_width2")
sketch12.setExpression("Constraints[20]", "Params.sketch12_height")
sketch12.setExpression("Constraints[21]", "Params.sketch12_height2")
pad7 = body.newObject("PartDesign::Pad", "Pad006")
pad7.Profile = sketch12
pad7.setExpression("Length", "Params.pad7_length")

# Sketch on YZ plane
sketch13 = body.newObject("Sketcher::SketchObject", "Sketch012")
sketch13.AttachmentSupport = (doc.getObject("YZ_Plane"), [""])
sketch13.MapMode = "FlatFace"
sketch13.AttachmentOffset = App.Placement(Vector(0, 0, 18.25), App.Rotation())
sketch13.addGeometry([
    Part.LineSegment(Vector(5, -26, 0), Vector(-6, -26, 0)),
    Part.LineSegment(Vector(-6, -26, 0), Vector(-6, -5, 0)),
    Part.LineSegment(Vector(-6, -5, 0), Vector(5, -5, 0)),
    Part.LineSegment(Vector(5, -5, 0), Vector(5, -26, 0)),
], False)
sketch13.addConstraint([
    Sketcher.Constraint("Coincident", 0, 2, 1, 1),
    Sketcher.Constraint("Coincident", 1, 2, 2, 1),
    Sketcher.Constraint("Coincident", 2, 2, 3, 1),
    Sketcher.Constraint("Coincident", 3, 2, 0, 1),
    Sketcher.Constraint("Horizontal", 0),
    Sketcher.Constraint("Vertical", 1),
    Sketcher.Constraint("Horizontal", 2),
    Sketcher.Constraint("Vertical", 3),
    Sketcher.Constraint("DistanceY", 1, 1, 1, 2, Q("21.5 mm")),
    Sketcher.Constraint("DistanceY", 1, 2, -1, 1, Q("5 mm")),
    Sketcher.Constraint("DistanceX", 0, 2, 0, 1, Q("11.438293 mm")),
    Sketcher.Constraint("DistanceX", 0, 2, -1, 1, Q("6.219146 mm")),
])
sketch13.setExpression("Constraints[8]", "Params.sketch13_height")
pocket6 = body.newObject("PartDesign::Pocket", "Pocket005")
pocket6.Profile = sketch13
pocket6.setExpression("Length", "Params.pocket6_length")
pocket6.Reversed = True

# Sketch on YZ plane
sketch14 = body.newObject("Sketcher::SketchObject", "Sketch013")
sketch14.AttachmentSupport = (doc.getObject("YZ_Plane"), [""])
sketch14.MapMode = "FlatFace"
sketch14.AttachmentOffset = App.Placement(Vector(0, 0, 20.25), App.Rotation())
sketch14.addGeometry(Part.Circle(Vector(-0.5, -20, 0), Vector(0, 0, 1), 3.5), False)
sketch14.addConstraint([
    Sketcher.Constraint("Diameter", 0, Q("7 mm")),
    Sketcher.Constraint("DistanceY", 0, 3, -1, 1, Q("20 mm")),
    Sketcher.Constraint("DistanceX", 0, 3, -1, 1, Q("0.5 mm")),
])
sketch14.setExpression("Constraints[0]", "Params.sketch14_diameter")
pocket7 = body.newObject("PartDesign::Pocket", "Pocket006")
pocket7.Profile = sketch14
pocket7.Type = "ThroughAll"
pocket7.Midplane = True
doc.recompute()

fillet = body.newObject("PartDesign::Fillet", "Fillet")
fillet.Base = (pocket7, edges_at(pocket7, [
    (20.25, 17.275, -26.5),
    (-20.25, 17.275, -26.5),
    (-20.25, -18.275, -26.5),
    (20.25, -18.275, -26.5),
]))
fillet.setExpression("Radius", "Params.fillet_radius")

# Sketch on YZ plane
sketch15 = body.newObject("Sketcher::SketchObject", "Sketch014")
sketch15.AttachmentSupport = (doc.getObject("YZ_Plane"), [""])
sketch15.MapMode = "FlatFace"
sketch15.AttachmentOffset = App.Placement(Vector(0, 0, -22.25), App.Rotation())
sketch15.addGeometry(Part.Circle(Vector(0, -20, 0), Vector(0, 0, 1), 6), False)
sketch15.addConstraint([
    Sketcher.Constraint("Diameter", 0, Q("13 mm")),
    Sketcher.Constraint("DistanceY", 0, 3, -1, 1, Q("20 mm")),
    Sketcher.Constraint("DistanceX", 0, 3, -1, 1, Q("0.5 mm")),
])
sketch15.setExpression("Constraints[0]", "Params.sketch15_diameter")
pad8 = body.newObject("PartDesign::Pad", "Pad007")
pad8.Profile = sketch15
pad8.setExpression("Length", "Params.pad8_length")

# Sketch on YZ plane
sketch16 = body.newObject("Sketcher::SketchObject", "Sketch015")
sketch16.AttachmentSupport = (doc.getObject("YZ_Plane"), [""])
sketch16.MapMode = "FlatFace"
sketch16.AttachmentOffset = App.Placement(Vector(0, 0, -17.25), App.Rotation())
sketch16.addGeometry(Part.Circle(Vector(0, -20, 0), Vector(0, 0, 1), 6), False)
sketch16.addConstraint([
    Sketcher.Constraint("Diameter", 0, Q("11.7 mm")),
    Sketcher.Constraint("DistanceY", 0, 3, -1, 1, Q("20 mm")),
    Sketcher.Constraint("DistanceX", 0, 3, -1, 1, Q("0.5 mm")),
])
sketch16.setExpression("Constraints[0]", "Params.sketch16_diameter")
pad9 = body.newObject("PartDesign::Pad", "Pad008")
pad9.Profile = sketch16
pad9.setExpression("Length", "Params.pad9_length")
doc.recompute()

fillet2 = body.newObject("PartDesign::Fillet", "Fillet001")
fillet2.Base = (pad9, edges_at(pad9, [(-12.25, -0.5, -14.15)]))
fillet2.setExpression("Radius", "Params.fillet2_radius")

# Sketch on YZ plane
sketch17 = body.newObject("Sketcher::SketchObject", "Sketch016")
sketch17.AttachmentSupport = (doc.getObject("YZ_Plane"), [""])
sketch17.MapMode = "FlatFace"
sketch17.AttachmentOffset = App.Placement(Vector(0, 0, 20.25), App.Rotation())
sketch17.addGeometry([
    Part.LineSegment(Vector(2.9, -26.5, 0), Vector(2, -5, 0)),  # 0
    Part.LineSegment(Vector(2, -5, 0), Vector(5.2, -5, 0)),  # 1
    Part.LineSegment(Vector(5.2, -5, 0), Vector(5.2, -26.5, 0)),  # 2
    Part.LineSegment(Vector(5.2, -26.5, 0), Vector(2.9, -26.5, 0)),  # 3
    Part.LineSegment(Vector(-3, -5, 0), Vector(-3.9, -26.5, 0)),  # 4
    Part.LineSegment(Vector(-3.9, -26.5, 0), Vector(-6.2, -26.5, 0)),  # 5
    Part.LineSegment(Vector(-6.2, -26.5, 0), Vector(-6.2, -5, 0)),  # 6
    Part.LineSegment(Vector(-6.2, -5, 0), Vector(-3, -5, 0)),  # 7
], False)
sketch17.addConstraint([
    Sketcher.Constraint("Coincident", 0, 2, 1, 1),
    Sketcher.Constraint("Coincident", 1, 2, 2, 1),
    Sketcher.Constraint("Coincident", 2, 2, 3, 1),
    Sketcher.Constraint("Coincident", 3, 2, 0, 1),
    Sketcher.Constraint("Coincident", 4, 2, 5, 1),
    Sketcher.Constraint("Coincident", 5, 2, 6, 1),
    Sketcher.Constraint("Coincident", 6, 2, 7, 1),
    Sketcher.Constraint("Coincident", 7, 2, 4, 1),
    Sketcher.Constraint("Horizontal", 1),
    Sketcher.Constraint("Vertical", 2),
    Sketcher.Constraint("Horizontal", 3),
    Sketcher.Constraint("Horizontal", 5),
    Sketcher.Constraint("Vertical", 6),
    Sketcher.Constraint("Horizontal", 7),
    Sketcher.Constraint("Horizontal", 3, 2, 4, 2),
    Sketcher.Constraint("Horizontal", 1, 2, 6, 2),
    Sketcher.Constraint("Equal", 3, 5),
    Sketcher.Constraint("Equal", 1, 7),
    Sketcher.Constraint("DistanceY", 2, 2, 2, 1, Q("21.5 mm")),
    Sketcher.Constraint("DistanceX", -1, 1, 0, 2, Q("2 mm")),
    Sketcher.Constraint("DistanceY", 0, 2, -1, 1, Q("5 mm")),
    Sketcher.Constraint("DistanceX", 7, 2, -1, 1, Q("3 mm")),
    Sketcher.Constraint("DistanceX", 4, 2, 3, 2, Q("6.8877 mm")),
    Sketcher.Constraint("DistanceX", 1, 1, 1, 2, Q("3.219146 mm")),
])
sketch17.setExpression("Constraints[18]", "Params.sketch17_height")
pad10 = body.newObject("PartDesign::Pad", "Pad009")
pad10.Profile = sketch17
pad10.setExpression("Length", "Params.pad10_length")
pad10.Reversed = True

# Sketch on YZ plane
sketch18 = body.newObject("Sketcher::SketchObject", "Sketch017")
sketch18.AttachmentSupport = (doc.getObject("YZ_Plane"), [""])
sketch18.MapMode = "FlatFace"
sketch18.AttachmentOffset = App.Placement(Vector(0, 0, 22.25), App.Rotation())
sketch18.addGeometry(Part.Circle(Vector(-0.5, -10, 0), Vector(0, 0, 1), 0.8), False)
sketch18.addConstraint([
    Sketcher.Constraint("Diameter", 0, Q("1.5 mm")),
    Sketcher.Constraint("DistanceY", 0, 3, -1, 1, Q("10 mm")),
    Sketcher.Constraint("DistanceX", 0, 3, -1, 1, Q("0.5 mm")),
])
sketch18.setExpression("Constraints[0]", "Params.sketch18_diameter")
pocket8 = body.newObject("PartDesign::Pocket", "Pocket007")
pocket8.Profile = sketch18
pocket8.Type = "UpToFirst"

# Sketch on YZ plane
sketch19 = body.newObject("Sketcher::SketchObject", "Sketch018")
sketch19.AttachmentSupport = (doc.getObject("YZ_Plane"), [""])
sketch19.MapMode = "FlatFace"
sketch19.AttachmentOffset = App.Placement(Vector(0, 0, 22.25), App.Rotation())
sketch19.addGeometry(Part.Circle(Vector(-0.5, -7.5, 0), Vector(0, 0, 1), 0.8), False)
sketch19.addConstraint([
    Sketcher.Constraint("Diameter", 0, Q("1.5 mm")),
    Sketcher.Constraint("DistanceX", 0, 3, -1, 1, Q("0.5 mm")),
    Sketcher.Constraint("DistanceY", 0, 3, -1, 1, Q("7.5 mm")),
])
sketch19.setExpression("Constraints[0]", "Params.sketch19_diameter")
pocket9 = body.newObject("PartDesign::Pocket", "Pocket008")
pocket9.Profile = sketch19
pocket9.Type = "UpToFirst"

# Sketch on YZ plane
sketch20 = body.newObject("Sketcher::SketchObject", "Sketch019")
sketch20.AttachmentSupport = (doc.getObject("YZ_Plane"), [""])
sketch20.MapMode = "FlatFace"
sketch20.AttachmentOffset = App.Placement(Vector(0, 0, 22.25), App.Rotation())
sketch20.addGeometry(Part.Circle(Vector(-0.5, -13, 0), Vector(0, 0, 1), 0.8), False)
sketch20.addConstraint([
    Sketcher.Constraint("Diameter", 0, Q("1.5 mm")),
    Sketcher.Constraint("DistanceY", 0, 3, -1, 1, Q("13 mm")),
    Sketcher.Constraint("DistanceX", 0, 3, -1, 1, Q("0.5 mm")),
])
sketch20.setExpression("Constraints[0]", "Params.sketch20_diameter")
pocket10 = body.newObject("PartDesign::Pocket", "Pocket009")
pocket10.Profile = sketch20
pocket10.Type = "UpToFirst"

# Sketch on XZ plane
sketch21 = body.newObject("Sketcher::SketchObject", "Sketch020")
sketch21.AttachmentSupport = (doc.getObject("XZ_Plane"), [""])
sketch21.MapMode = "FlatFace"
sketch21.AttachmentOffset = App.Placement(Vector(0, 0, 18.275), App.Rotation())
sketch21.addGeometry([
    Part.LineSegment(Vector(-13, -12, 0), Vector(-13, 24, 0)),  # 0
    Part.LineSegment(Vector(-13, 24, 0), Vector(-27, 24, 0)),  # 1
    Part.LineSegment(Vector(-27, 24, 0), Vector(-27, -30, 0)),  # 2
    Part.LineSegment(Vector(-27, -30, 0), Vector(-2, -30, 0)),  # 3
    Part.LineSegment(Vector(-2, -30, 0), Vector(-2, -12, 0)),  # 4
    Part.LineSegment(Vector(-2, -12, 0), Vector(-13, -12, 0)),  # 5
], False)
sketch21.addConstraint([
    Sketcher.Constraint("Coincident", 0, 2, 1, 1),
    Sketcher.Constraint("Coincident", 1, 2, 2, 1),
    Sketcher.Constraint("Coincident", 2, 2, 3, 1),
    Sketcher.Constraint("Coincident", 3, 2, 4, 1),
    Sketcher.Constraint("Coincident", 4, 2, 5, 1),
    Sketcher.Constraint("Coincident", 5, 2, 0, 1),
    Sketcher.Constraint("Vertical", 0),
    Sketcher.Constraint("Horizontal", 1),
    Sketcher.Constraint("Vertical", 2),
    Sketcher.Constraint("Horizontal", 3),
    Sketcher.Constraint("Vertical", 4),
    Sketcher.Constraint("Horizontal", 5),
    Sketcher.Constraint("DistanceY", -1, 1, 0, 2, Q("23.55 mm")),
    Sketcher.Constraint("DistanceY", 2, 2, 2, 1, Q("53.852101 mm")),
    Sketcher.Constraint("DistanceX", 3, 1, 3, 2, Q("25.08883 mm")),
    Sketcher.Constraint("DistanceY", 0, 1, 0, 2, Q("35.103409 mm")),
    Sketcher.Constraint("DistanceX", 1, 2, 1, 1, Q("14.262943 mm")),
    Sketcher.Constraint("DistanceX", 0, 2, -1, 1, Q("12.546781 mm")),
])
pocket11 = body.newObject("PartDesign::Pocket", "Pocket010")
pocket11.Profile = sketch21
pocket11.Type = "ThroughAll"

# Sketch on YZ plane
sketch22 = body.newObject("Sketcher::SketchObject", "Sketch021")
sketch22.AttachmentSupport = (doc.getObject("YZ_Plane"), [""])
sketch22.MapMode = "FlatFace"
sketch22.AttachmentOffset = App.Placement(Vector(0, 0, -12.546781), App.Rotation())
sketch22.addGeometry([
    Part.Circle(Vector(9.5, 5, 0), Vector(0, 0, 1), 2.1),
    Part.Circle(Vector(-10.5, 5, 0), Vector(0, 0, 1), 2.1),
    Part.Circle(Vector(-0.5, 5, 0), Vector(0, 0, 1), 3.2),
], False)
sketch22.addConstraint([
    Sketcher.Constraint("Equal", 0, 1),
    Sketcher.Constraint("Horizontal", 0, 3, 1, 3),
    Sketcher.Constraint("Horizontal", 1, 3, 2, 3),
    Sketcher.Constraint("Diameter", 0, Q("4.2 mm")),
    Sketcher.Constraint("Diameter", 2, Q("6.4 mm")),
    Sketcher.Constraint("DistanceY", -1, 1, 0, 3, Q("5 mm")),
    Sketcher.Constraint("DistanceX", 1, 3, 0, 3, Q("20 mm")),
    Sketcher.Constraint("DistanceX", 2, 3, 0, 3, Q("10 mm")),
    Sketcher.Constraint("DistanceX", -1, 1, 0, 3, Q("9.5 mm")),
])
sketch22.setExpression("Constraints[3]", "Params.sketch22_diameter")
sketch22.setExpression("Constraints[4]", "Params.sketch22_diameter2")
pocket12 = body.newObject("PartDesign::Pocket", "Pocket011")
pocket12.Profile = sketch22
pocket12.setExpression("Length", "Params.pocket12_length")
pocket12.Reversed = True
doc.recompute()

fillet3 = body.newObject("PartDesign::Fillet", "Fillet002")
fillet3.Base = (pocket12, edges_at(pocket12, [(-12.547, 9.5, 2.9), (-12.547, -10.5, 2.9)]))
fillet3.setExpression("Radius", "Params.fillet3_radius")

# Sketch on YZ plane
sketch23 = body.newObject("Sketcher::SketchObject", "Sketch022")
sketch23.AttachmentSupport = (doc.getObject("YZ_Plane"), [""])
sketch23.MapMode = "FlatFace"
sketch23.AttachmentOffset = App.Placement(Vector(0, 0, 12.546781), App.Rotation())
sketch23.addGeometry([
    Part.LineSegment(Vector(17, 10, 0), Vector(-18, 10, 0)),
    Part.LineSegment(Vector(-18, 10, 0), Vector(-18, 0, 0)),
    Part.LineSegment(Vector(-18, 0, 0), Vector(17, 0, 0)),
    Part.LineSegment(Vector(17, 0, 0), Vector(17, 10, 0)),
], False)
sketch23.addConstraint([
    Sketcher.Constraint("Coincident", 0, 2, 1, 1),
    Sketcher.Constraint("Coincident", 1, 2, 2, 1),
    Sketcher.Constraint("Coincident", 2, 2, 3, 1),
    Sketcher.Constraint("Coincident", 3, 2, 0, 1),
    Sketcher.Constraint("Horizontal", 0),
    Sketcher.Constraint("Vertical", 1),
    Sketcher.Constraint("Horizontal", 2),
    Sketcher.Constraint("Vertical", 3),
    Sketcher.Constraint("PointOnObject", 1, 2, -1),
    Sketcher.Constraint("DistanceY", 1, 2, 1, 1, Q("10 mm")),
    Sketcher.Constraint("DistanceX", 0, 2, 0, 1, Q("35.55 mm")),
    Sketcher.Constraint("DistanceX", 0, 2, -1, 1, Q("18.275 mm")),
])
sketch23.setExpression("Constraints[9]", "Params.sketch23_height")
sketch23.setExpression("Constraints[10]", "Params.sketch23_width")
pad11 = body.newObject("PartDesign::Pad", "Pad010")
pad11.Profile = sketch23
pad11.setExpression("Length", "Params.pad11_length")

doc.recompute()
